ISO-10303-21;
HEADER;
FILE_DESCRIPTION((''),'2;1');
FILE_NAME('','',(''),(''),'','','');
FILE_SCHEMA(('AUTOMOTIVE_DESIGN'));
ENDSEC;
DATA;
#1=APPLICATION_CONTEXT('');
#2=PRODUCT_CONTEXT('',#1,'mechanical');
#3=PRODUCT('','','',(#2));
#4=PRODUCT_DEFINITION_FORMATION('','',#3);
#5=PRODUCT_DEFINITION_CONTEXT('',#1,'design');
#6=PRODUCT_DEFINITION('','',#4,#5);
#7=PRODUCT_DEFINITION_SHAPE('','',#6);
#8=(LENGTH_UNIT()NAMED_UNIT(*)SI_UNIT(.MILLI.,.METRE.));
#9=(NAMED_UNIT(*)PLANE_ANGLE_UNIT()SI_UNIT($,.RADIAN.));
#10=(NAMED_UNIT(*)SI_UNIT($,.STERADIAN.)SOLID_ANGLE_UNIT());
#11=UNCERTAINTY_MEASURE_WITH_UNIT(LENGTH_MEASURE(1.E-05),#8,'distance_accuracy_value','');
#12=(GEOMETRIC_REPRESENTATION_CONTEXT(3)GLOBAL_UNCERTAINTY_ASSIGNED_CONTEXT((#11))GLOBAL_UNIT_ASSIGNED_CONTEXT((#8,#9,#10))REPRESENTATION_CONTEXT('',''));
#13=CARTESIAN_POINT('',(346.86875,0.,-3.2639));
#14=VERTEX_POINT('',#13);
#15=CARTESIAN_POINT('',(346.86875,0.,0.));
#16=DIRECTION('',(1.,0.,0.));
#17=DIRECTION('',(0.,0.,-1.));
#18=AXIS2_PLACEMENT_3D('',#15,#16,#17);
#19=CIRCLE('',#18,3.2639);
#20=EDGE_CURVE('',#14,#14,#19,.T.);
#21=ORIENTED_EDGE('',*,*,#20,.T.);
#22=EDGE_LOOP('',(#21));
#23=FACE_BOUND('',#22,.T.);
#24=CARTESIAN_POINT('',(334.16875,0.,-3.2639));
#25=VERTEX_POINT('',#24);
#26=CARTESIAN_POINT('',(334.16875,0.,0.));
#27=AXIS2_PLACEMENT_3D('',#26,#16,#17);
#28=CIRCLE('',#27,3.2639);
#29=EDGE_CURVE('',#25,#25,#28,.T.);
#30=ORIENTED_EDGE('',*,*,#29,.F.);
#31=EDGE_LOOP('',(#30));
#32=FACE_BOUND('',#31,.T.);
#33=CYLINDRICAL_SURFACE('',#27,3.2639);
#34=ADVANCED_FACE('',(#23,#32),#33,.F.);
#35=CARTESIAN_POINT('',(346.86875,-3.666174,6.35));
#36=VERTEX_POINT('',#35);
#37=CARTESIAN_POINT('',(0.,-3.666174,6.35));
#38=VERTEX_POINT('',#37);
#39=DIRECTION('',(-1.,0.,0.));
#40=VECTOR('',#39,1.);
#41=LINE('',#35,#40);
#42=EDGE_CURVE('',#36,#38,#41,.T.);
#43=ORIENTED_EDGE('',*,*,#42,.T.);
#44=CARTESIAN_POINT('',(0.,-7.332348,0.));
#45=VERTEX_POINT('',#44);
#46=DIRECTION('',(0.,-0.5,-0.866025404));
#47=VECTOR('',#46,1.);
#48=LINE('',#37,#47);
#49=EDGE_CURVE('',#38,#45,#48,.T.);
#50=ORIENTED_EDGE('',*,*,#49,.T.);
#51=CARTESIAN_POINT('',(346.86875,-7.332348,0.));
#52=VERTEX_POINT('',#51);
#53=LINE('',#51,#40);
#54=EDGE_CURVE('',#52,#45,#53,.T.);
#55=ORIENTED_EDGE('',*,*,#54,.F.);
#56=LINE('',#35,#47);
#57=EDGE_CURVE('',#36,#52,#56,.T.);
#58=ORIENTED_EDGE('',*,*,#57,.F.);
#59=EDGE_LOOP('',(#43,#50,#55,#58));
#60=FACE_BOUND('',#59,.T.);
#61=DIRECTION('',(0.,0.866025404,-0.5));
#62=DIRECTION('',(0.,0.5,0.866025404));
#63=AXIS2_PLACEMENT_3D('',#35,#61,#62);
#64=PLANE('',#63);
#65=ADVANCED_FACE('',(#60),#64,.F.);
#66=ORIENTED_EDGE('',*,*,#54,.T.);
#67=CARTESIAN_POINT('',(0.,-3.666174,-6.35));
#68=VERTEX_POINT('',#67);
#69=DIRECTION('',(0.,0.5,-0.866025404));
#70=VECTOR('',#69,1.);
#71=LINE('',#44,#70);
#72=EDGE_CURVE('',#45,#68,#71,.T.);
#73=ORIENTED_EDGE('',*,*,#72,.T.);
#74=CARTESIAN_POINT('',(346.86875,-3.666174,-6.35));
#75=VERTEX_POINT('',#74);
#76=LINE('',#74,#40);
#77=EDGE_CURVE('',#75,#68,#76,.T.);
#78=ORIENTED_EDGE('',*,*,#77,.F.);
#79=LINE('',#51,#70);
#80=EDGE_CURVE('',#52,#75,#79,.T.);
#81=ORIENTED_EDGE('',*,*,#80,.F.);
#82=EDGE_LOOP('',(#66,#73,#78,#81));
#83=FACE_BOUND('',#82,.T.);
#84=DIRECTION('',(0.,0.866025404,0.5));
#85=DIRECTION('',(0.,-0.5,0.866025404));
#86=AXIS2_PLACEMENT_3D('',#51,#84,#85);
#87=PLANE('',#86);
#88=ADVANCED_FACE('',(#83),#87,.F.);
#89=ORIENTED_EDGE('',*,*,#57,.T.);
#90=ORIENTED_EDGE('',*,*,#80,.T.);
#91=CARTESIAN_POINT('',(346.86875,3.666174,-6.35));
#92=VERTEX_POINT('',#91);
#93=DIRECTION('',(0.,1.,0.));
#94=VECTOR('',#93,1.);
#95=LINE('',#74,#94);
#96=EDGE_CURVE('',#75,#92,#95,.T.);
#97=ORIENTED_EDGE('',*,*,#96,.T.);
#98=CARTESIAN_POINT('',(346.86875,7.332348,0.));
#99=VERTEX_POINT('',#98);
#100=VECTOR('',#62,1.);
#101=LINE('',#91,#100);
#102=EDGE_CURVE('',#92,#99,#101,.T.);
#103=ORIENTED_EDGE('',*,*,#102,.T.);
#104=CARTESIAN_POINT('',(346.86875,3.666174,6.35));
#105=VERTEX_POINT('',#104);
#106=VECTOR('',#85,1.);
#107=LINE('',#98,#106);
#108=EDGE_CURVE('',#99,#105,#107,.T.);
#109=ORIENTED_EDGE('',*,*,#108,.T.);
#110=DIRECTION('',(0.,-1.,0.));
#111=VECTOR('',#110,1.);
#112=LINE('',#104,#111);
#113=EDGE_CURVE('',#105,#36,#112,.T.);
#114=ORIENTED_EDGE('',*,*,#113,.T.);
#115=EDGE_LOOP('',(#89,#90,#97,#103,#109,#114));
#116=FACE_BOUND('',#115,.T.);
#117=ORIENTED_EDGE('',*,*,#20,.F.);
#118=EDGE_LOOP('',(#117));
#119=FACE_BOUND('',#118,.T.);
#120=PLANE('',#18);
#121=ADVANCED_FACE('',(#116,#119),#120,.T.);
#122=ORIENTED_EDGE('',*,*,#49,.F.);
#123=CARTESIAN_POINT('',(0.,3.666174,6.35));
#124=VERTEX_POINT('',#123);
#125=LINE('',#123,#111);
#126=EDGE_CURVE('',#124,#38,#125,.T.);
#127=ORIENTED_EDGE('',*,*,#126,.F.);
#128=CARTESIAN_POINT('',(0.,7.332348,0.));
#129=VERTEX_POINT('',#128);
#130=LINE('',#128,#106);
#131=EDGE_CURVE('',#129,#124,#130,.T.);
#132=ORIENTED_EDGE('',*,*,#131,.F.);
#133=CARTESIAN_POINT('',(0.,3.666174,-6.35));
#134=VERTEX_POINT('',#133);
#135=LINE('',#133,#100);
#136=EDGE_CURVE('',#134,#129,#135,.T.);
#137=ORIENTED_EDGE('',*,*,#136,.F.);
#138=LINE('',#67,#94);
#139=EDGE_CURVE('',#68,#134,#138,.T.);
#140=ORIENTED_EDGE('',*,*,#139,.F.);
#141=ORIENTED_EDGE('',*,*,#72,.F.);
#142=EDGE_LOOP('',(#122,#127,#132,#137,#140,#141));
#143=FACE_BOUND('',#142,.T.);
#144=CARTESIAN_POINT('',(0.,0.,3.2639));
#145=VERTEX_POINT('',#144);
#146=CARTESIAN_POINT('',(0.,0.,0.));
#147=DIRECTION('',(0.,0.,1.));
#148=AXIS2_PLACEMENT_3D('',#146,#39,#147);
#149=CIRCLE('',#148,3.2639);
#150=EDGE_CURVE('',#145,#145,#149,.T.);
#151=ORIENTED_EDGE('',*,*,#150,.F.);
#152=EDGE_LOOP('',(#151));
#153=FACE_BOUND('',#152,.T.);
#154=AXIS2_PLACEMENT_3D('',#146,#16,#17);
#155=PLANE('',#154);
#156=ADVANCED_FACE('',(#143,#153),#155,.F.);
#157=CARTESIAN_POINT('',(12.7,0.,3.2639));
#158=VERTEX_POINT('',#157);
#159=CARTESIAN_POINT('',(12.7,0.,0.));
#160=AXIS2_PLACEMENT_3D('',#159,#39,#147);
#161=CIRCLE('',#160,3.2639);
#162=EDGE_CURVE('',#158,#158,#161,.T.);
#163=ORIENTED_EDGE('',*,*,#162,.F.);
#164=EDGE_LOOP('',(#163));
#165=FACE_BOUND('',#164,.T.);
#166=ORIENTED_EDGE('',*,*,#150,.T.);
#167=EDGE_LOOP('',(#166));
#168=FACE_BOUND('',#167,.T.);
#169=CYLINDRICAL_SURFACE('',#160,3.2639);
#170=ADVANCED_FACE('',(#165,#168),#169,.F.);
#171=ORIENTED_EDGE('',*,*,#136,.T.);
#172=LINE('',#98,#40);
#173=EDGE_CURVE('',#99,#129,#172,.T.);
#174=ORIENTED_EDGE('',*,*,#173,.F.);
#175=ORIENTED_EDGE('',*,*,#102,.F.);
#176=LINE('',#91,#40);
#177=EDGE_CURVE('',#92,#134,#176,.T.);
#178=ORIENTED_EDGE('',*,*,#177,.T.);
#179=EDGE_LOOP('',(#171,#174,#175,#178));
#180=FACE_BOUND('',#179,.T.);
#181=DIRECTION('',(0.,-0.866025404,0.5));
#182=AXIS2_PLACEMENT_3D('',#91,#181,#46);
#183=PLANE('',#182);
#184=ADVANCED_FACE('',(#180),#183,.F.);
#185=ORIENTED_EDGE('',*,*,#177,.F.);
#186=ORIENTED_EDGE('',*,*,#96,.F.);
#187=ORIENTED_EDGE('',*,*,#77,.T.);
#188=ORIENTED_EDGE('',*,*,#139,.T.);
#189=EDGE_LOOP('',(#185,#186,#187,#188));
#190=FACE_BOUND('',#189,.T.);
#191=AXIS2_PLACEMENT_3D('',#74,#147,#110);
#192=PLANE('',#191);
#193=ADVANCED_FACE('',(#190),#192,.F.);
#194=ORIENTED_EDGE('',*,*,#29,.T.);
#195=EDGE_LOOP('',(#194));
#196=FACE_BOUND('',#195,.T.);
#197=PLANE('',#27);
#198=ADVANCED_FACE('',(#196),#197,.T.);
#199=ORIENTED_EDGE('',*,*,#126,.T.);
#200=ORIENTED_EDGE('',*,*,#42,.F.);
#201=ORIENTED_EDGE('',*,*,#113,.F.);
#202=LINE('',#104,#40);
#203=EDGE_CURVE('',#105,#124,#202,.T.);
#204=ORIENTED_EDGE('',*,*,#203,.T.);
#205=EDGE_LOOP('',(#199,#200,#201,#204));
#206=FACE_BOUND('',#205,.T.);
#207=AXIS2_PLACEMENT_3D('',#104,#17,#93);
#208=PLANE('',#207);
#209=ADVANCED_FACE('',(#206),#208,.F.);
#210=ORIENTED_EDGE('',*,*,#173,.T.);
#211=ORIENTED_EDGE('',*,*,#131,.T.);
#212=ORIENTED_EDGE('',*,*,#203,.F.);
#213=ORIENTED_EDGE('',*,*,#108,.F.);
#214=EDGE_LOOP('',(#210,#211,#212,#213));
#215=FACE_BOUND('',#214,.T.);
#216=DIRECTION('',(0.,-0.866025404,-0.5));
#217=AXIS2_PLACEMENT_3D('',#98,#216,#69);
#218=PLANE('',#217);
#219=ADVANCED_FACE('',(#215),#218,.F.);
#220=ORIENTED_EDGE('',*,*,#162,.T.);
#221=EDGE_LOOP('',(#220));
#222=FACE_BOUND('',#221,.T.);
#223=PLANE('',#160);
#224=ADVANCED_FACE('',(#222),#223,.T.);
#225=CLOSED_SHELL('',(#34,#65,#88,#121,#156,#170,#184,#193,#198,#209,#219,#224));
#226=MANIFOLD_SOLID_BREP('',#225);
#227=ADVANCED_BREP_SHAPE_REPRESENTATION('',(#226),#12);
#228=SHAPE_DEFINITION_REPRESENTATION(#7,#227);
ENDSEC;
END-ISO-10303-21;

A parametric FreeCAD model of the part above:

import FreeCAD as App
import Part
import Sketcher
Q = App.Units.Quantity


def add_polygon(sketch, points):
    """Adds a closed chain of lines whose ends are joined by coincident constraints."""
    first, n = sketch.GeometryCount, len(points)
    for a, b in zip(points, points[1:] + points[:1]):
        sketch.addGeometry(Part.LineSegment(App.Vector(*a, 0), App.Vector(*b, 0)), False)
    for i in range(n):
        sketch.addConstraint(Sketcher.Constraint("Coincident", first + i, 2, first + (i + 1) % n, 1))

doc = App.newDocument("Part")
body = doc.addObject("PartDesign::Body", "Body")

# Sketch on YZ plane
sketch1 = body.newObject("Sketcher::SketchObject", "Sketch")
sketch1.AttachmentSupport = (doc.getObject("YZ_Plane"), [""])
sketch1.MapMode = "FlatFace"
add_polygon(sketch1, [(7, 0), (4, 6), (-4, 6), (-7, 0), (-4, -6), (4, -6)])  # lines 0-5
sketch1.addConstraint(Sketcher.Constraint("Horizontal", 1))
sketch1.addConstraint(Sketcher.Constraint("Horizontal", 4))
sketch1.addConstraint(Sketcher.Constraint("Symmetric", 0, 2, 3, 2, -1, 1))
sketch1.addConstraint(Sketcher.Constraint("Symmetric", 2, 2, 5, 2, -1, 1))
sketch1.addConstraint(Sketcher.Constraint("PointOnObject", 2, 2, -1))
sketch1.addConstraint(Sketcher.Constraint("Parallel", 2, 5))
sketch1.addConstraint(Sketcher.Constraint("Vertical", 1, 2, 3, 2))
sketch1.addConstraint(Sketcher.Constraint("Angle", 0, Q("120 deg")))
sketch1.addConstraint(Sketcher.Constraint("DistanceY", 3, 2, 1, 2, Q("0.5 in")))
sketch1.addConstraint(Sketcher.Constraint("DistanceX", 1, 2, 1, 1, Q("7.332348 mm")))
pad1 = body.newObject("PartDesign::Pad", "Pad")
pad1.Profile = sketch1
pad1.Length = Q("13.65625 in")

# Sketch on YZ plane
sketch2 = body.newObject("Sketcher::SketchObject", "Sketch001")
sketch2.AttachmentSupport = (doc.getObject("YZ_Plane"), [""])
sketch2.MapMode = "FlatFace"
sketch2.AttachmentOffset = App.Placement(App.Vector(0, 0, 13.65625 * 25.4), App.Rotation())
sketch2.addGeometry(Part.Circle(App.Vector(0, 0, 0), App.Vector(0, 0, 1), 3.3), False)
sketch2.addConstraint(Sketcher.Constraint("Coincident", 0, 3, -1, 1))
sketch2.addConstraint(Sketcher.Constraint("Diameter", 0, Q("0.257 in")))
pocket1 = body.newObject("PartDesign::Pocket", "Pocket")
pocket1.Profile = sketch2
pocket1.Length = Q("0.5 in")

# Sketch on YZ plane
sketch3 = body.newObject("Sketcher::SketchObject", "Sketch002")
sketch3.AttachmentSupport = (doc.getObject("YZ_Plane"), [""])
sketch3.MapMode = "FlatFace"
sketch3.addGeometry(Part.Circle(App.Vector(0, 0, 0), App.Vector(0, 0, 1), 3.3), False)
sketch3.addConstraint(Sketcher.Constraint("Coincident", 0, 3, -1, 1))
sketch3.addConstraint(Sketcher.Constraint("Diameter", 0, Q("0.257 in")))
pocket2 = body.newObject("PartDesign::Pocket", "Pocket001")
pocket2.Profile = sketch3
pocket2.Length = Q("0.5 in")
pocket2.Reversed = True

doc.recompute()
